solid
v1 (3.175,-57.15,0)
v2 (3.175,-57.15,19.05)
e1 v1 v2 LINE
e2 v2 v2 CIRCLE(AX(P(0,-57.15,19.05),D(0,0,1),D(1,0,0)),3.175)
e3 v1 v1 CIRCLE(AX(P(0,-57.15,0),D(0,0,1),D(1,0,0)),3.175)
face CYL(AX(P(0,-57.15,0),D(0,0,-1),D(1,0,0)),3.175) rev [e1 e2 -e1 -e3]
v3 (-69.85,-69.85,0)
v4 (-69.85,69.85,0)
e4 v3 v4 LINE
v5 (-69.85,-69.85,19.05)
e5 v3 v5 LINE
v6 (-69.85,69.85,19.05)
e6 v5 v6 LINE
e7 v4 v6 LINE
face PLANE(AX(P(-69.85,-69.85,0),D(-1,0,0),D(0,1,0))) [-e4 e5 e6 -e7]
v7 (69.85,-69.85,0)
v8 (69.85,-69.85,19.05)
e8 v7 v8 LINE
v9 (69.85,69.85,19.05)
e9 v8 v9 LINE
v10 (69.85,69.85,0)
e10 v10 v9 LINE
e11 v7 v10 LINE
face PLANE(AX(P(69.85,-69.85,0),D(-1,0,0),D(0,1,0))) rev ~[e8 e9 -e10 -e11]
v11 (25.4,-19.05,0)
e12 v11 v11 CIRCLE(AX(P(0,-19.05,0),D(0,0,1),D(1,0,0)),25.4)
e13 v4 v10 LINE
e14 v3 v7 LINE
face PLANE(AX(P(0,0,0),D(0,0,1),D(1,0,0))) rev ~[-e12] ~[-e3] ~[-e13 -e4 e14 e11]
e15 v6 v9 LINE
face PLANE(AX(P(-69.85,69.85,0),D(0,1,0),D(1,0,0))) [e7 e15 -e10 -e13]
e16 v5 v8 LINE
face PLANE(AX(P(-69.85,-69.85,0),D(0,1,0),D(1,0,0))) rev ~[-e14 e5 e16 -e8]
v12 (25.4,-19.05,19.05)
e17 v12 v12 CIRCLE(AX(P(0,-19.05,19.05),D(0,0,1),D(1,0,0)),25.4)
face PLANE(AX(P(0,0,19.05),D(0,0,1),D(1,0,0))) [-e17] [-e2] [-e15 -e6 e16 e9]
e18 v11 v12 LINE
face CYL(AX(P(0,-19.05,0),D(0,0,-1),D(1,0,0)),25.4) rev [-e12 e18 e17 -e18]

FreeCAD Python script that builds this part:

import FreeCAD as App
import Part
import Sketcher
from FreeCAD import Vector
Q = App.Units.Quantity

doc = App.newDocument("Part")
body = doc.addObject("PartDesign::Body", "Body")

# Sketch on XY plane
sketch1 = body.newObject("Sketcher::SketchObject", "Sketch")
sketch1.AttachmentSupport = (doc.getObject("XY_Plane"), [""])
sketch1.MapMode = "FlatFace"
sketch1.addGeometry([
    Part.LineSegment(Vector(-69.8, 69.8, 0), Vector(-69.8, -69.8, 0)),  # 0
    Part.LineSegment(Vector(-69.8, -69.8, 0), Vector(69.8, -69.8, 0)),  # 1
    Part.LineSegment(Vector(69.8, -69.8, 0), Vector(69.8, 69.8, 0)),  # 2
    Part.LineSegment(Vector(69.8, 69.8, 0), Vector(-69.8, 69.8, 0)),  # 3
    Part.Circle(Vector(0, -57.1, 0), Vector(0, 0, 1), 3.2),  # 4
    Part.Circle(Vector(0, -19.1, 0), Vector(0, 0, 1), 25.4),  # 5
], False)
sketch1.addConstraint([
    Sketcher.Constraint("Coincident", 0, 2, 1, 1),
    Sketcher.Constraint("Coincident", 1, 2, 2, 1),
    Sketcher.Constraint("Coincident", 2, 2, 3, 1),
    Sketcher.Constraint("Coincident", 3, 2, 0, 1),
    Sketcher.Constraint("Vertical", 0),
    Sketcher.Constraint("Horizontal", 1),
    Sketcher.Constraint("Vertical", 2),
    Sketcher.Constraint("Horizontal", 3),
    Sketcher.Constraint("Symmetric", 0, 2, 2, 2, -1, 1),
    Sketcher.Constraint("PointOnObject", 4, 3, -2),
    Sketcher.Constraint("PointOnObject", 5, 3, -2),
    Sketcher.Constraint("Equal", 3, 0),
    Sketcher.Constraint("Diameter", 5, Q("2 in")),
    Sketcher.Constraint("Diameter", 4, Q("0.25 in")),
    Sketcher.Constraint("DistanceX", 1, 1, 1, 2, Q("5.5 in")),
    Sketcher.Constraint("DistanceY", 0, 2, 5, 3, Q("2 in")),
    Sketcher.Constraint("DistanceY", 4, 3, 2, 2, Q("5 in")),
])
pad1 = body.newObject("PartDesign::Pad", "Pad")
pad1.Profile = sketch1
pad1.Length = Q("0.75 in")

doc.recompute()
